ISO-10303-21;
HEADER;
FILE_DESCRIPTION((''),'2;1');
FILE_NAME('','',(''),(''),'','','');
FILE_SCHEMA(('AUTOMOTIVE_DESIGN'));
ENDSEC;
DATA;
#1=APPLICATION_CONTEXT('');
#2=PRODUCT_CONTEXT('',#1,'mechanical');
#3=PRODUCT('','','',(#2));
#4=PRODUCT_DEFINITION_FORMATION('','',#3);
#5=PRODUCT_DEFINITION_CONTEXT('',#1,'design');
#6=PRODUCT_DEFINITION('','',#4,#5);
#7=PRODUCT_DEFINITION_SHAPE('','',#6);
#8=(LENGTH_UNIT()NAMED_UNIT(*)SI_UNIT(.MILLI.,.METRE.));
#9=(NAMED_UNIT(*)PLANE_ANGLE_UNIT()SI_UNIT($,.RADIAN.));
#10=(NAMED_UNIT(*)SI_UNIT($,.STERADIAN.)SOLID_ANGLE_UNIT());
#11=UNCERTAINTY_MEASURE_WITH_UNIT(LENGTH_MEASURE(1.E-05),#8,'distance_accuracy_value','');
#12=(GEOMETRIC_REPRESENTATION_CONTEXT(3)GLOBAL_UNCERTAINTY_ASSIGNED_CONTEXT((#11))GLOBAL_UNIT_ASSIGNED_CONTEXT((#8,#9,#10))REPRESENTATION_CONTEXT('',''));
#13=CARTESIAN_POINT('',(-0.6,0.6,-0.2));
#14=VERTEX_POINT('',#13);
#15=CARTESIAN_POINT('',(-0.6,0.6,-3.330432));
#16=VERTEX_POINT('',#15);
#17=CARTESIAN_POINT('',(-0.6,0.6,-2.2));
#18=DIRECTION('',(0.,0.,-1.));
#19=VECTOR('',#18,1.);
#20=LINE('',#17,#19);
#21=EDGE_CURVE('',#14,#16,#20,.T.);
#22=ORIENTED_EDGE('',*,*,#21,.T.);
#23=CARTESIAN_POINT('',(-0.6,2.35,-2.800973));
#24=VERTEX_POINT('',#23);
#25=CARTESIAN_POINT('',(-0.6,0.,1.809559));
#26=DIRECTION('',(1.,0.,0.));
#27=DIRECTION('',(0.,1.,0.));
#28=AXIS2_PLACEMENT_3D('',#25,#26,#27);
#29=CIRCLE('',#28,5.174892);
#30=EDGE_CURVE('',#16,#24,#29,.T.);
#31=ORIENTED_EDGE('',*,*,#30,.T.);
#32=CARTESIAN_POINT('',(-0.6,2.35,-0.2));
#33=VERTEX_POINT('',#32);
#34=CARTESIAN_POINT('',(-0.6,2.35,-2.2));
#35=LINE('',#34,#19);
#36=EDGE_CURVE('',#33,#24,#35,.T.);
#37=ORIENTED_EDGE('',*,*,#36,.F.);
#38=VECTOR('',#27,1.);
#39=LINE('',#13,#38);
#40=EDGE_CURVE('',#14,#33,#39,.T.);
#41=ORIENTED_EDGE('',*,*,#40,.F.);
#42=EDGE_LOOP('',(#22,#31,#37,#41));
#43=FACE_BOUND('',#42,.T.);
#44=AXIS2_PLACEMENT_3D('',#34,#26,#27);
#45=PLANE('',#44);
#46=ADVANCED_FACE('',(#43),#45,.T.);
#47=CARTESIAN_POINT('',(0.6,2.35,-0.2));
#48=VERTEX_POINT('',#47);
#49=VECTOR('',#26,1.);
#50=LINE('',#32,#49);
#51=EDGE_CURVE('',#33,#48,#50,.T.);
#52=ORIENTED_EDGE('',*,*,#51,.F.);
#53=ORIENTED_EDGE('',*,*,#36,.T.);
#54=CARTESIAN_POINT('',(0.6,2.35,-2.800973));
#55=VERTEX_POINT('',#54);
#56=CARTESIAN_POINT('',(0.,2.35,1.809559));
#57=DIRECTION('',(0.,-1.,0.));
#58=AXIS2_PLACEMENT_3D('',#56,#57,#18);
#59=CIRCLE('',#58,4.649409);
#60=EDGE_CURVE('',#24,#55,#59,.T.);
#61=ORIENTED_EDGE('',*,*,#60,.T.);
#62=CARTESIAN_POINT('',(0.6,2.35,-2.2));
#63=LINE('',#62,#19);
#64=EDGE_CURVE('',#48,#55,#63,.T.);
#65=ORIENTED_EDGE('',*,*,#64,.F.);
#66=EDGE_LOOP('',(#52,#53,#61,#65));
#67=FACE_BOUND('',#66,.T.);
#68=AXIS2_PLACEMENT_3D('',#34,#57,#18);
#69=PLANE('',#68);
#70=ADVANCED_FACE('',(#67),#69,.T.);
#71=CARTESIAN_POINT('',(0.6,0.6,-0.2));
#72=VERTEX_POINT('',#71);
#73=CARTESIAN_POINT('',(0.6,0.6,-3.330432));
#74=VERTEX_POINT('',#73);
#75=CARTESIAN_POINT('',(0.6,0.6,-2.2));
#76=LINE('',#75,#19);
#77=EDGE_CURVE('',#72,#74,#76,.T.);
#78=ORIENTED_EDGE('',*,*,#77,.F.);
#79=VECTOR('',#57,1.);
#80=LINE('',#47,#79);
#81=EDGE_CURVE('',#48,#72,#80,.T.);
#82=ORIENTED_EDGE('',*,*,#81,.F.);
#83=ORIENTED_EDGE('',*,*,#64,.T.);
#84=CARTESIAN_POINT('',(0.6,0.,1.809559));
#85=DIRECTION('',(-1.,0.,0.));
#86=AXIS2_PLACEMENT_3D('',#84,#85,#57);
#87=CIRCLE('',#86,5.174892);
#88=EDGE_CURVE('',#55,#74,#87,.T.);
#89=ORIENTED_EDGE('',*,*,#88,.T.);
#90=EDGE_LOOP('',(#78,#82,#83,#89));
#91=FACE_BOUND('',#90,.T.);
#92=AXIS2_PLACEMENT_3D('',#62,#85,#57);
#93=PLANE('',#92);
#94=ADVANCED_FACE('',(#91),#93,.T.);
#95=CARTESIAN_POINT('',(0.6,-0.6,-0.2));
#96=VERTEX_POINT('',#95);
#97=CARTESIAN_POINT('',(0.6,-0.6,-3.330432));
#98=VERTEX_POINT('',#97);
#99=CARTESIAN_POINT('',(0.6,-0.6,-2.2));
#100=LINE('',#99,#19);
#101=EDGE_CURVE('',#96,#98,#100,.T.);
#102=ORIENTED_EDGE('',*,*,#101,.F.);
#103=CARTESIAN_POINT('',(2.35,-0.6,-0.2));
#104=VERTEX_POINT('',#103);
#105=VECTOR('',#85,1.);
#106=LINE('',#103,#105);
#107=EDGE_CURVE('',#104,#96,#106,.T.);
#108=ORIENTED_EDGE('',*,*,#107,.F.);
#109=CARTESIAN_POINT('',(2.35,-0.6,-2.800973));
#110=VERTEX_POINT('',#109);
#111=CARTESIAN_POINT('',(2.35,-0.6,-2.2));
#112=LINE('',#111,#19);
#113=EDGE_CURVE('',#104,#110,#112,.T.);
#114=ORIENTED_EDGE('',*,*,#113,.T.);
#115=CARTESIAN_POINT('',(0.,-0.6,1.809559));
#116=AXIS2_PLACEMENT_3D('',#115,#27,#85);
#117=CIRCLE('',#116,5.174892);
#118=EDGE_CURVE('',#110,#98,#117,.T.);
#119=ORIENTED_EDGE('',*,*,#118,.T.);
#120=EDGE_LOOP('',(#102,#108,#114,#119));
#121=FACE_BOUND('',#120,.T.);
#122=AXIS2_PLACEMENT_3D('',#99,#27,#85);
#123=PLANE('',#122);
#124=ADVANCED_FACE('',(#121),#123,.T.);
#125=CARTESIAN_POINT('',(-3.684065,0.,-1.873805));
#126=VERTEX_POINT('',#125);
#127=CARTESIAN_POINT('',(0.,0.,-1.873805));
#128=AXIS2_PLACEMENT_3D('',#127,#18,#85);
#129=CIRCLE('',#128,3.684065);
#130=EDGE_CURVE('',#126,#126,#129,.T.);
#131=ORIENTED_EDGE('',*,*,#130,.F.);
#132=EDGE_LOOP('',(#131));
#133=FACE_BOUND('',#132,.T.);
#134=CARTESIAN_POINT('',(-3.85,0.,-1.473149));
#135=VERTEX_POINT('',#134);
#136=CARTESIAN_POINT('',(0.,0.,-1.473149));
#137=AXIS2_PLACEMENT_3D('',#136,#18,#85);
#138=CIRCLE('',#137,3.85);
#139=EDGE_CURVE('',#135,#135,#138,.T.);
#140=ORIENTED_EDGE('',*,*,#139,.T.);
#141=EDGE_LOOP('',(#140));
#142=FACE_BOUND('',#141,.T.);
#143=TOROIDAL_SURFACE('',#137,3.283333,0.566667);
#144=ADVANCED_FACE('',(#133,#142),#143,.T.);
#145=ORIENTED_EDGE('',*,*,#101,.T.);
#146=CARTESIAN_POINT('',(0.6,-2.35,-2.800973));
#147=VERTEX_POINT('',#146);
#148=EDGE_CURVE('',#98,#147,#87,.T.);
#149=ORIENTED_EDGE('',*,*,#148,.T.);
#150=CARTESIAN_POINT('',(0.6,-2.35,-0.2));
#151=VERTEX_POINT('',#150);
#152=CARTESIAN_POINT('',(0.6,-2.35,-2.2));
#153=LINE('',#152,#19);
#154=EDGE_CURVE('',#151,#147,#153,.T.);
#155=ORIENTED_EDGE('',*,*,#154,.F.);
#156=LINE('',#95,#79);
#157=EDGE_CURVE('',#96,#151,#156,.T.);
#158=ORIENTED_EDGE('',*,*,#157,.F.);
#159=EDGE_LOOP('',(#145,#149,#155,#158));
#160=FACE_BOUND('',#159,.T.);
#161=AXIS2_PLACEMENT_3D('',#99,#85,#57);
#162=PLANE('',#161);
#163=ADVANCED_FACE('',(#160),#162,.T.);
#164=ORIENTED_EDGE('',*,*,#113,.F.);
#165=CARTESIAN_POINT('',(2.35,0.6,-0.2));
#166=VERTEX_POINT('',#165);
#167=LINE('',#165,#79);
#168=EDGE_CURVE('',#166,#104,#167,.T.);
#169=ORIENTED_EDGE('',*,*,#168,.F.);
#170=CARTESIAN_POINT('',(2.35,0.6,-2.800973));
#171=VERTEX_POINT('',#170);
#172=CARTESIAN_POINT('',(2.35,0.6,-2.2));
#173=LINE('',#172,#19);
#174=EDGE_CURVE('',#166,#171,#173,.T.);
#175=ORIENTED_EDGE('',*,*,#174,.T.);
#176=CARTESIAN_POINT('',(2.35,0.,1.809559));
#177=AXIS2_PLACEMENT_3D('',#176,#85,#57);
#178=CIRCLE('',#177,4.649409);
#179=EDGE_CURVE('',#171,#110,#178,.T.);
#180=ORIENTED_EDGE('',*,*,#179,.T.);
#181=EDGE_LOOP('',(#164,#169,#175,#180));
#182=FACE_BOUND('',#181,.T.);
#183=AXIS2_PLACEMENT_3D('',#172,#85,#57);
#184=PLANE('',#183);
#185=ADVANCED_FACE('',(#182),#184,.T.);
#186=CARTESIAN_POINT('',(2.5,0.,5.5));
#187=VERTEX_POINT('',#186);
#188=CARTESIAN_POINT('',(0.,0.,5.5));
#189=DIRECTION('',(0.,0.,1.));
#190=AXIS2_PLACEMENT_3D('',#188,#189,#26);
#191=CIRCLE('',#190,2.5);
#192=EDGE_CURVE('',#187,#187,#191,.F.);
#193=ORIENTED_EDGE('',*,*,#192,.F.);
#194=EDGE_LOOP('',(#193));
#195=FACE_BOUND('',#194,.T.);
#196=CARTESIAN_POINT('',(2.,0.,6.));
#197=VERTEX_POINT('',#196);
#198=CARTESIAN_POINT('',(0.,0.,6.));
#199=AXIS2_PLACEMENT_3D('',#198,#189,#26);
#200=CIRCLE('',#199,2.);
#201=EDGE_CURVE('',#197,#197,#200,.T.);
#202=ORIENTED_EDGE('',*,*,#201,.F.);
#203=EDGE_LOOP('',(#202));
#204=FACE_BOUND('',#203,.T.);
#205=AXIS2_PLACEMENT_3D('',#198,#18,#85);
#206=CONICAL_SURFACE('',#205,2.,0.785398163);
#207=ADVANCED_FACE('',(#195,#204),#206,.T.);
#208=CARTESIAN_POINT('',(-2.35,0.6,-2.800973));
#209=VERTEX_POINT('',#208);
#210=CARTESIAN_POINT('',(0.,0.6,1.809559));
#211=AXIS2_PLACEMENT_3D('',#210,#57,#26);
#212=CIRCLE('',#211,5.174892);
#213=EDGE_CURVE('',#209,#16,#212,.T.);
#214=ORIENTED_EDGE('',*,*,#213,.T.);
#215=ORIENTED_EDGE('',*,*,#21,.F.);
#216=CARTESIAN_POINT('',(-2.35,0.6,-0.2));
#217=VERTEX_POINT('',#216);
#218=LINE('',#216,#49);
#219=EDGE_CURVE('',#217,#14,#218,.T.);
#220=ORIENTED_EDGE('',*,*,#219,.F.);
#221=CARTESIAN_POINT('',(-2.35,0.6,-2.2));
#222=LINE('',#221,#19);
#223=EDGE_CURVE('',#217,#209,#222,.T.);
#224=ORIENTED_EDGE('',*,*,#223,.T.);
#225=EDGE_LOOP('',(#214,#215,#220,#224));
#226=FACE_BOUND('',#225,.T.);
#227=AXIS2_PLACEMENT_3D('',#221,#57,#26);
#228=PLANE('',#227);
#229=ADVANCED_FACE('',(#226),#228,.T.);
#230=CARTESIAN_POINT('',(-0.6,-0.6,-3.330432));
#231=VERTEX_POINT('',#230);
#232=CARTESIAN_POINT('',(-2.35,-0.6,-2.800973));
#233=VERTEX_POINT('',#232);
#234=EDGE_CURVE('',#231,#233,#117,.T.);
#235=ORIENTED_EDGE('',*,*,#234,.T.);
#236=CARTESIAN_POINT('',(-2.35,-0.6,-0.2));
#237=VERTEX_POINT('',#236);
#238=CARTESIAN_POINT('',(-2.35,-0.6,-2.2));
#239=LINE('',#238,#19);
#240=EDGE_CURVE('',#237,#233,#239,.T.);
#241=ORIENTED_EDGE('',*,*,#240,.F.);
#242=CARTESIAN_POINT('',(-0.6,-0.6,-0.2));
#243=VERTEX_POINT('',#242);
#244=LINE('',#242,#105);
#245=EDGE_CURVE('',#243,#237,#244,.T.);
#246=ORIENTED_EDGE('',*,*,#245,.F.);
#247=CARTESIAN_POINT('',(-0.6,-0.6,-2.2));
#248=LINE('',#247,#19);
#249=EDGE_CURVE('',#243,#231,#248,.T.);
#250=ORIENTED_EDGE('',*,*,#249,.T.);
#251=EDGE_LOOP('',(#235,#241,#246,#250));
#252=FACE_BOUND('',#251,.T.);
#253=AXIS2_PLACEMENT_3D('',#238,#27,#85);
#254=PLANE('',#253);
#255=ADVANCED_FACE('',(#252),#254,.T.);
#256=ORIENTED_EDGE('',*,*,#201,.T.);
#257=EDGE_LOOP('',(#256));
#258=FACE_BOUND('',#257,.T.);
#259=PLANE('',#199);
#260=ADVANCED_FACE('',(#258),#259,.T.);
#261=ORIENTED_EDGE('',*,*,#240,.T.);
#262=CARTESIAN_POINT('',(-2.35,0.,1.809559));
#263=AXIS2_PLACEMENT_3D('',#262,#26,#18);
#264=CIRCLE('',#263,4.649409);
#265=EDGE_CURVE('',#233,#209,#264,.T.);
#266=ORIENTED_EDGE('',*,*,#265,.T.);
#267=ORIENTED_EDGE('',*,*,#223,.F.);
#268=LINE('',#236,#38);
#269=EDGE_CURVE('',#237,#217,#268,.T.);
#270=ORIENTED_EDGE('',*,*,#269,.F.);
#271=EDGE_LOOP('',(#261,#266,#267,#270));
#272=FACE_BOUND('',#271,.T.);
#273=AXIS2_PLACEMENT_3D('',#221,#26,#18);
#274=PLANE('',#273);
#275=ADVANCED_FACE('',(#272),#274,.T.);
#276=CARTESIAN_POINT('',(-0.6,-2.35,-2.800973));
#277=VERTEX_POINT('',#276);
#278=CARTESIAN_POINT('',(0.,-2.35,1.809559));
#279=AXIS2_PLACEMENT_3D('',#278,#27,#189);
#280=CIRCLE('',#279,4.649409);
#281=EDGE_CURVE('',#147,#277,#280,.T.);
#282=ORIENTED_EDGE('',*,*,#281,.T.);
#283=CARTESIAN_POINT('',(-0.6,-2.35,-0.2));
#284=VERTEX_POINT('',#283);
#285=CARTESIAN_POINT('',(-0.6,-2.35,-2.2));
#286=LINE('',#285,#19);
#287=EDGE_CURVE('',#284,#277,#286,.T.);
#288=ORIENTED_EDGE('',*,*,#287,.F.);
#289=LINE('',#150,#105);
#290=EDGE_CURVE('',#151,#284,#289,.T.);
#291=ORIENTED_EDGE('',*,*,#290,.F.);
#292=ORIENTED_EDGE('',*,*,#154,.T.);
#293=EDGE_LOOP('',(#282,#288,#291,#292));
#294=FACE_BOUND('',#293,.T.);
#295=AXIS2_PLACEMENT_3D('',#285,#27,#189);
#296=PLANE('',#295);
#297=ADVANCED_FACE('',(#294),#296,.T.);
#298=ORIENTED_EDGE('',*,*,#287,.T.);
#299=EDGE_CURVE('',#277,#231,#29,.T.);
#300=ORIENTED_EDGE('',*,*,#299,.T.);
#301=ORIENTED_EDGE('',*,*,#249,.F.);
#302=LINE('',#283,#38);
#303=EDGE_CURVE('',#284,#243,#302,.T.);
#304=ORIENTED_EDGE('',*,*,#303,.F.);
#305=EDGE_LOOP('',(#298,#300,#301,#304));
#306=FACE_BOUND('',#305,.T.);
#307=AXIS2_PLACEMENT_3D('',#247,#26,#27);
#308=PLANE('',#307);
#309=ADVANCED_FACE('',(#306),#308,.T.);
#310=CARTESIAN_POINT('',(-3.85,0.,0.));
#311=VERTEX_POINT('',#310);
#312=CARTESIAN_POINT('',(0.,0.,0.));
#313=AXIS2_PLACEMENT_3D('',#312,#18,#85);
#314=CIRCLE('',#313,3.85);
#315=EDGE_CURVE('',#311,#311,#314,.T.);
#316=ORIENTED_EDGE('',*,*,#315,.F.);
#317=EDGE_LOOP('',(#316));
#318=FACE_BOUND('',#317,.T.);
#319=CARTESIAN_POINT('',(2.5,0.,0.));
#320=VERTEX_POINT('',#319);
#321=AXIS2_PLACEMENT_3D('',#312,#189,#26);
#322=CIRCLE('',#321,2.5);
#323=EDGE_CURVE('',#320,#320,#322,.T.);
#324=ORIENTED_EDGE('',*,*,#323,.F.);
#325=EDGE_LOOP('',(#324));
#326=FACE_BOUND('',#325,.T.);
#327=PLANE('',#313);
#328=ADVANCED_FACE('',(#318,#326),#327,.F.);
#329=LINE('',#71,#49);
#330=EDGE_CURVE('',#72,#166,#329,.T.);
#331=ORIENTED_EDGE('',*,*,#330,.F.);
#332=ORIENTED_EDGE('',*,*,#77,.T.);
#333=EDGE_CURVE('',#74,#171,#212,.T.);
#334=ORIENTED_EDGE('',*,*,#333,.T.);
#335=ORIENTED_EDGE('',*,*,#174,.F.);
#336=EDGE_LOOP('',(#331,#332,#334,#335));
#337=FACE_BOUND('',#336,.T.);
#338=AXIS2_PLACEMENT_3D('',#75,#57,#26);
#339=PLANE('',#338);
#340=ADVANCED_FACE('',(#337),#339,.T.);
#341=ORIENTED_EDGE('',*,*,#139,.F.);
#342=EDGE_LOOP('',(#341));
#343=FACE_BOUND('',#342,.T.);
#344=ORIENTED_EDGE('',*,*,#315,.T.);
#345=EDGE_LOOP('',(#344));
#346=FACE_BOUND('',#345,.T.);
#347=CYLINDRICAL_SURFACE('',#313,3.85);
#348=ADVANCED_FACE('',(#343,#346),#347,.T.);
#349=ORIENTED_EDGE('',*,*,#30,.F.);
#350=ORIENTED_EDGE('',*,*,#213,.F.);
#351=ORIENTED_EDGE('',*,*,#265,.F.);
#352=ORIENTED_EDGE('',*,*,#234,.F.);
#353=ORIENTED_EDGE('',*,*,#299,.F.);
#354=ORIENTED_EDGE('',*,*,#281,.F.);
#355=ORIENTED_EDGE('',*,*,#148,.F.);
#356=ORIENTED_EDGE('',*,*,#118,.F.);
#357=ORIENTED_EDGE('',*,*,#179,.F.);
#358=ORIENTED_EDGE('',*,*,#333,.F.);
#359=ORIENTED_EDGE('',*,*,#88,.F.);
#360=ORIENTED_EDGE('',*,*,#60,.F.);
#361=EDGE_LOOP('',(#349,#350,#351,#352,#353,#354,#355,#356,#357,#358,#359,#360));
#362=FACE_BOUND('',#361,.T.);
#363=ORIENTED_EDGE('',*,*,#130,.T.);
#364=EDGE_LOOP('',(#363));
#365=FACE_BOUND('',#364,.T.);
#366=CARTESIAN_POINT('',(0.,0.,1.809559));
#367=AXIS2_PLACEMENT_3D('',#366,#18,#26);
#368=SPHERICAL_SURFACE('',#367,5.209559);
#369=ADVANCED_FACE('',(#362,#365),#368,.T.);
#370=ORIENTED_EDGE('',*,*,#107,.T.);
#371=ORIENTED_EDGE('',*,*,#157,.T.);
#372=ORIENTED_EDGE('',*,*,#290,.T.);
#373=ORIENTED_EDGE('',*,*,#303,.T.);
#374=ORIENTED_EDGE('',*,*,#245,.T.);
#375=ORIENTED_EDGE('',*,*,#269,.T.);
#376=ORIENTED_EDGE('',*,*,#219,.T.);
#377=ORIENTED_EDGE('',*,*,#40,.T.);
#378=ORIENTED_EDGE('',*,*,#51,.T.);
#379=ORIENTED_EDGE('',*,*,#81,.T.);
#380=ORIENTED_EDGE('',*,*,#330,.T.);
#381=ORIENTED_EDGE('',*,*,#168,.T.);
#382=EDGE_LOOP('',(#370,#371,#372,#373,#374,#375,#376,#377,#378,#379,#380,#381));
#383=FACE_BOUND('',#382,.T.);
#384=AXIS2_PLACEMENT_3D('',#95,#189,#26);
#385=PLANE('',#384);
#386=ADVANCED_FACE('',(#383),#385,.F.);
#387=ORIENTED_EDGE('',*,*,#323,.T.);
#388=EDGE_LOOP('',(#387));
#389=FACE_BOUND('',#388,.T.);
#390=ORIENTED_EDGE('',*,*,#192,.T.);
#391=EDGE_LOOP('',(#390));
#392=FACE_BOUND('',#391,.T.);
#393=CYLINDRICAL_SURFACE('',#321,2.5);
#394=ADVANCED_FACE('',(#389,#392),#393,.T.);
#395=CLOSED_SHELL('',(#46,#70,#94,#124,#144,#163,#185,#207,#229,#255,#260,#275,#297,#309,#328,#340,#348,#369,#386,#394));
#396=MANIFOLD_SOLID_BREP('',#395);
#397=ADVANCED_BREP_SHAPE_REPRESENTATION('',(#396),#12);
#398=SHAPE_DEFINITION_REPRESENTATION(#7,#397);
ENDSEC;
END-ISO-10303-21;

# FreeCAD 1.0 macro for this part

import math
import FreeCAD as App
import Part
import Sketcher
from FreeCAD import Vector


def edges_at(feature, points):
    """Names of the edges that pass closest to the given points."""
    edges = feature.Shape.Edges
    near = lambda p: min(range(len(edges)), key=lambda i: edges[i].distToShape(Part.Vertex(*p))[0])
    return sorted({f"Edge{near(p) + 1}" for p in points})


def add_polygon(sketch, points):
    """Adds a closed chain of lines whose ends are joined by coincident constraints."""
    first, n = sketch.GeometryCount, len(points)
    for a, b in zip(points, points[1:] + points[:1]):
        sketch.addGeometry(Part.LineSegment(App.Vector(*a, 0), App.Vector(*b, 0)), False)
    for i in range(n):
        sketch.addConstraint(Sketcher.Constraint("Coincident", first + i, 2, first + (i + 1) % n, 1))

doc = App.newDocument("Part")
params = doc.addObject("Spreadsheet::Sheet", "Params")
for row, (alias, value) in enumerate([
    ("sketch1_height", "3.4 mm"),
    ("sketch1_width", "3.85 mm"),
    ("revolution_angle", "360 deg"),
    ("sketch2_width", "1.2 mm"),
    ("sketch2_width2", "1.75 mm"),
    ("pocket1_length", "1.2 mm"),
    ("sketch3_height", "6 mm"),
    ("sketch3_width", "2.5 mm"),
    ("revolution2_angle", "360 deg"),
    ("chamfer_size", "0.5 mm"),
    ("sketch4_width", "1.2 mm"),
    ("sketch4_width2", "1.75 mm"),
    ("pocket2_length", "2 mm"),
], start=1):
    params.set(f"A{row}", alias)
    params.set(f"B{row}", "=" + value)
    params.setAlias(f"B{row}", alias)

body = doc.addObject("PartDesign::Body", "Body")

sketch1 = body.newObject("Sketcher::SketchObject", "Sketch")
sketch1.AttachmentSupport = (doc.getObject("XZ_Plane"), [""])
sketch1.MapMode = "FlatFace"
sketch1.addGeometry([
    Part.LineSegment(Vector(0, 0, 0), Vector(3.85, 0, 0)),
    Part.LineSegment(Vector(3.85, 0, 0), Vector(3.85, -1.47, 0)),
    Part.ArcOfCircle(Part.Circle(Vector(3.28, -1.47, 0), Vector(0, 0, 1), 0.57), math.radians(-45), math.radians(0)),
    Part.ArcOfCircle(Part.Circle(Vector(0, 1.81, 0), Vector(0, 0, 1), 5.21), math.radians(-90), math.radians(-45)),
    Part.LineSegment(Vector(0, -3.4, 0), Vector(0, 0, 0)),
], False)
sketch1.addConstraint([
    Sketcher.Constraint("Coincident", 0, 2, 1, 1),
    Sketcher.Constraint("Tangent", 1, 2, 2, 2),
    Sketcher.Constraint("Tangent", 2, 1, 3, 2),
    Sketcher.Constraint("Coincident", 3, 1, 4, 1),
    Sketcher.Constraint("Coincident", 4, 2, 0, 1),
    Sketcher.Constraint("Horizontal", 0),
    Sketcher.Constraint("Vertical", 1),
    Sketcher.Constraint("Vertical", 4),
    Sketcher.Constraint("Coincident", 4, 2, -1, 1),
    Sketcher.Constraint("PointOnObject", 3, 3, -2),
    Sketcher.Constraint("DistanceY", 4, 1, 4, 2, 3.4),
    Sketcher.Constraint("DistanceX", 0, 1, 0, 2, 3.85),
    Sketcher.Constraint("Radius", 3, 5.209559),
    Sketcher.Constraint("Radius", 2, 0.566667),
])
sketch1.setExpression("Constraints[10]", "Params.sketch1_height")
sketch1.setExpression("Constraints[11]", "Params.sketch1_width")
revolution = body.newObject("PartDesign::Revolution", "Revolution")
revolution.Profile = sketch1
revolution.ReferenceAxis = (sketch1, ["V_Axis"])
revolution.setExpression("Angle", "Params.revolution_angle")

sketch2 = body.newObject("Sketcher::SketchObject", "Sketch001")
sketch2.AttachmentSupport = (doc.getObject("XY_Plane"), [""])
sketch2.MapMode = "FlatFace"
sketch2.AttachmentOffset = App.Placement(Vector(0, 0, -3.4), App.Rotation())
add_polygon(sketch2, [(0.6, -2.4), (0.6, -0.6), (2.4, -0.6), (2.4, 0.6), (0.6, 0.6), (0.6, 2.4), (-0.6, 2.4), (-0.6, 0.6), (-2.4, 0.6), (-2.4, -0.6), (-0.6, -0.6), (-0.6, -2.4)])
sketch2.addConstraint([
    Sketcher.Constraint("Vertical", 0),
    Sketcher.Constraint("Horizontal", 1),
    Sketcher.Constraint("Vertical", 2),
    Sketcher.Constraint("Horizontal", 3),
    Sketcher.Constraint("Vertical", 4),
    Sketcher.Constraint("Horizontal", 5),
    Sketcher.Constraint("Vertical", 6),
    Sketcher.Constraint("Horizontal", 7),
    Sketcher.Constraint("Vertical", 8),
    Sketcher.Constraint("Horizontal", 9),
    Sketcher.Constraint("Vertical", 10),
    Sketcher.Constraint("Horizontal", 11),
    Sketcher.Constraint("Symmetric", 0, 2, 6, 2, -1, 1),
    Sketcher.Constraint("Symmetric", 2, 2, 8, 2, -1, 1),
    Sketcher.Constraint("Symmetric", 4, 2, 10, 2, -1, 1),
    Sketcher.Constraint("Symmetric", 3, 2, 6, 2, -2),
    Sketcher.Constraint("Equal", 9, 0),
    Sketcher.Constraint("Equal", 11, 2),
    Sketcher.Constraint("DistanceX", 5, 2, 5, 1, 1.2),
    Sketcher.Constraint("DistanceX", 1, 1, 1, 2, 1.75),
])
sketch2.setExpression("Constraints[30]", "Params.sketch2_width")
sketch2.setExpression("Constraints[31]", "Params.sketch2_width2")
pocket1 = body.newObject("PartDesign::Pocket", "Pocket")
pocket1.Profile = sketch2
pocket1.setExpression("Length", "Params.pocket1_length")
pocket1.Reversed = True

sketch3 = body.newObject("Sketcher::SketchObject", "Sketch002")
sketch3.AttachmentSupport = (doc.getObject("XZ_Plane"), [""])
sketch3.MapMode = "FlatFace"
add_polygon(sketch3, [(0, 0), (0, 6), (2.5, 6), (2.5, 0)])
sketch3.addConstraint([
    Sketcher.Constraint("Vertical", 0),
    Sketcher.Constraint("Horizontal", 1),
    Sketcher.Constraint("Vertical", 2),
    Sketcher.Constraint("Horizontal", 3),
    Sketcher.Constraint("Coincident", 3, 2, -1, 1),
    Sketcher.Constraint("DistanceY", 0, 1, 0, 2, 6.0),
    Sketcher.Constraint("DistanceX", 1, 1, 1, 2, 2.5),
])
sketch3.setExpression("Constraints[9]", "Params.sketch3_height")
sketch3.setExpression("Constraints[10]", "Params.sketch3_width")
revolution2 = body.newObject("PartDesign::Revolution", "Revolution001")
revolution2.Profile = sketch3
revolution2.ReferenceAxis = (sketch3, ["V_Axis"])
revolution2.setExpression("Angle", "Params.revolution2_angle")
doc.recompute()

chamfer = body.newObject("PartDesign::Chamfer", "Chamfer")
chamfer.Base = (revolution2, edges_at(revolution2, [(-2.422, 0.618, 6)]))
chamfer.setExpression("Size", "Params.chamfer_size")

sketch4 = body.newObject("Sketcher::SketchObject", "Sketch003")
sketch4.AttachmentSupport = (doc.getObject("XY_Plane"), [""])
sketch4.MapMode = "FlatFace"
sketch4.AttachmentOffset = App.Placement(Vector(0, 0, -2.2), App.Rotation())
add_polygon(sketch4, [(-2.4, -0.6), (-2.4, 0.6), (-0.6, 0.6), (-0.6, 2.4), (0.6, 2.4), (0.6, 0.6), (2.4, 0.6), (2.4, -0.6), (0.6, -0.6), (0.6, -2.4), (-0.6, -2.4), (-0.6, -0.6)])
sketch4.addConstraint([
    Sketcher.Constraint("Vertical", 0),
    Sketcher.Constraint("Horizontal", 1),
    Sketcher.Constraint("Vertical", 2),
    Sketcher.Constraint("Horizontal", 3),
    Sketcher.Constraint("Vertical", 4),
    Sketcher.Constraint("Horizontal", 5),
    Sketcher.Constraint("Vertical", 6),
    Sketcher.Constraint("Horizontal", 7),
    Sketcher.Constraint("Vertical", 8),
    Sketcher.Constraint("Horizontal", 9),
    Sketcher.Constraint("Vertical", 10),
    Sketcher.Constraint("Horizontal", 11),
    Sketcher.Constraint("Symmetric", 0, 2, 6, 2, -1, 1),
    Sketcher.Constraint("Symmetric", 2, 2, 8, 2, -1, 1),
    Sketcher.Constraint("Symmetric", 4, 2, 10, 2, -1, 1),
    Sketcher.Constraint("Symmetric", 1, 2, 4, 2, -2),
    Sketcher.Constraint("Equal", 9, 0),
    Sketcher.Constraint("Equal", 11, 2),
    Sketcher.Constraint("DistanceX", 3, 1, 3, 2, 1.2),
    Sketcher.Constraint("DistanceX", 1, 1, 1, 2, 1.75),
])
sketch4.setExpression("Constraints[30]", "Params.sketch4_width")
sketch4.setExpression("Constraints[31]", "Params.sketch4_width2")
pocket2 = body.newObject("PartDesign::Pocket", "Pocket001")
pocket2.Profile = sketch4
pocket2.setExpression("Length", "Params.pocket2_length")
pocket2.Reversed = True

doc.recompute()
